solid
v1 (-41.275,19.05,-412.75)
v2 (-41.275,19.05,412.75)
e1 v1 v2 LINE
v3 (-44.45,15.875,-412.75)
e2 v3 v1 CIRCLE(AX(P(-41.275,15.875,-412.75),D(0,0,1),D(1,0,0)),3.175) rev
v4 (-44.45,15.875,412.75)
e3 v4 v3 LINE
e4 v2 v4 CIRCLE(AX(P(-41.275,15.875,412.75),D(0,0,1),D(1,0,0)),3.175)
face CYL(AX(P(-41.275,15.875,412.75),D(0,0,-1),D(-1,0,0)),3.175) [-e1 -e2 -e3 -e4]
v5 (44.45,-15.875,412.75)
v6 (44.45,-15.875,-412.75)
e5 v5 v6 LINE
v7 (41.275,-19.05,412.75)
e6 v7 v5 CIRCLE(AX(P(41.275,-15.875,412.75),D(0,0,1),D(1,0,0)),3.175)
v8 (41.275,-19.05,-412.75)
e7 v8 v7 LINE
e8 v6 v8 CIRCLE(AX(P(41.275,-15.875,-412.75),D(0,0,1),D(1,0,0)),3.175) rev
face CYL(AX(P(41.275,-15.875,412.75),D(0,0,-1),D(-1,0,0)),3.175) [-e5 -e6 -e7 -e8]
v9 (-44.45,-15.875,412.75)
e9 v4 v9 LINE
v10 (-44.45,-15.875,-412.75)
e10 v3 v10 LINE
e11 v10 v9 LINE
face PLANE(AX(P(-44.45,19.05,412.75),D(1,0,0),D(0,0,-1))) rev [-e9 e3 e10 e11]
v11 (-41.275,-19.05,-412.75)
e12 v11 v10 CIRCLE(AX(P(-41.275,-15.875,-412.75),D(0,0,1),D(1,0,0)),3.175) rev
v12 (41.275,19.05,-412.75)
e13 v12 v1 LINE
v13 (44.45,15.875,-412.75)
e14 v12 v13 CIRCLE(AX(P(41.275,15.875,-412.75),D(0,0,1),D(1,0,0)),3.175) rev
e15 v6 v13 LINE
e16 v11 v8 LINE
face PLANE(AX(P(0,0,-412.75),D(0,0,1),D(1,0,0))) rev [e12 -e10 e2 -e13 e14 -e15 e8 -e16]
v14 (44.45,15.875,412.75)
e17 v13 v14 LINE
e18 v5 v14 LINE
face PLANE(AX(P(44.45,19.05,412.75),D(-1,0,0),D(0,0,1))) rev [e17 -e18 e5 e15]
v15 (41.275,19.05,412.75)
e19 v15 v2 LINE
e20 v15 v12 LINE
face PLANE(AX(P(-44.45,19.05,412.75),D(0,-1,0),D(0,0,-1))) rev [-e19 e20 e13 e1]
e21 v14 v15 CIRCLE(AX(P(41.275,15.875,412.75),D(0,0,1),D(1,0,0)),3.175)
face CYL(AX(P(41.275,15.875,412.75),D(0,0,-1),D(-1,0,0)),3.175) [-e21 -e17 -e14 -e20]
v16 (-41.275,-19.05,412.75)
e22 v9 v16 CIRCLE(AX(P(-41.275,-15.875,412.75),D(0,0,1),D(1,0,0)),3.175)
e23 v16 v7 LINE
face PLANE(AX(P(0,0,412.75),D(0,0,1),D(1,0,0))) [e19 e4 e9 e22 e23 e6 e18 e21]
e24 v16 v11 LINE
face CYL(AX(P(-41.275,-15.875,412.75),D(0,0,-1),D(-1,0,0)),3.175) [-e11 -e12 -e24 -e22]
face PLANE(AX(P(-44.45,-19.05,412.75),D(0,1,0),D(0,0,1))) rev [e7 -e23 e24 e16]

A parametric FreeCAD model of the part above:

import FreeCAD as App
import Part
import Sketcher

V = App.Vector
Q = App.Units.Quantity


def edges_at(feature, points):
    """Names of the edges that pass closest to the given points."""
    edges = feature.Shape.Edges
    near = lambda p: min(range(len(edges)), key=lambda i: edges[i].distToShape(Part.Vertex(*p))[0])
    return sorted({f"Edge{near(p) + 1}" for p in points})


def add_polygon(sketch, points):
    """Adds a closed chain of lines whose ends are joined by coincident constraints."""
    first, n = sketch.GeometryCount, len(points)
    for a, b in zip(points, points[1:] + points[:1]):
        sketch.addGeometry(Part.LineSegment(App.Vector(*a, 0), App.Vector(*b, 0)), False)
    for i in range(n):
        sketch.addConstraint(Sketcher.Constraint("Coincident", first + i, 2, first + (i + 1) % n, 1))

doc = App.newDocument("Part")
params = doc.addObject("Spreadsheet::Sheet", "Params")
for row, (alias, value) in enumerate([
    ("sketch1_width", "3.5 in"),
    ("sketch1_height", "1.5 in"),
    ("pad1_length", "32.5 in"),
    ("fillet_radius", "0.125 in"),
], start=1):
    params.set(f"A{row}", alias)
    params.set(f"B{row}", "=" + value)
    params.setAlias(f"B{row}", alias)

body = doc.addObject("PartDesign::Body", "Body")

sketch1 = body.newObject("Sketcher::SketchObject", "Sketch")
sketch1.AttachmentSupport = (doc.getObject("XY_Plane"), [""])
sketch1.MapMode = "FlatFace"
add_polygon(sketch1, [(-44, 19), (-44, -19), (44, -19), (44, 19)])
sketch1.addConstraint([
    Sketcher.Constraint("Vertical", 0),
    Sketcher.Constraint("Horizontal", 1),
    Sketcher.Constraint("Vertical", 2),
    Sketcher.Constraint("Horizontal", 3),
    Sketcher.Constraint("Symmetric", 0, 2, 2, 2, -1, 1),
    Sketcher.Constraint("DistanceX", 1, 1, 1, 2, Q("3.5 in")),
    Sketcher.Constraint("DistanceY", 0, 2, 0, 1, Q("1.5 in")),
])
sketch1.setExpression("Constraints[9]", "Params.sketch1_width")
sketch1.setExpression("Constraints[10]", "Params.sketch1_height")
pad1 = body.newObject("PartDesign::Pad", "Pad")
pad1.Profile = sketch1
pad1.setExpression("Length", "Params.pad1_length")
pad1.Midplane = True
doc.recompute()

fillet = body.newObject("PartDesign::Fillet", "Fillet")
fillet.Base = (pad1, edges_at(pad1, [
    (44.45, -19.05, 0),
    (-44.45, -19.05, 0),
    (-44.45, 19.05, 0),
    (44.45, 19.05, 0),
]))
fillet.setExpression("Radius", "Params.fillet_radius")

doc.recompute()
